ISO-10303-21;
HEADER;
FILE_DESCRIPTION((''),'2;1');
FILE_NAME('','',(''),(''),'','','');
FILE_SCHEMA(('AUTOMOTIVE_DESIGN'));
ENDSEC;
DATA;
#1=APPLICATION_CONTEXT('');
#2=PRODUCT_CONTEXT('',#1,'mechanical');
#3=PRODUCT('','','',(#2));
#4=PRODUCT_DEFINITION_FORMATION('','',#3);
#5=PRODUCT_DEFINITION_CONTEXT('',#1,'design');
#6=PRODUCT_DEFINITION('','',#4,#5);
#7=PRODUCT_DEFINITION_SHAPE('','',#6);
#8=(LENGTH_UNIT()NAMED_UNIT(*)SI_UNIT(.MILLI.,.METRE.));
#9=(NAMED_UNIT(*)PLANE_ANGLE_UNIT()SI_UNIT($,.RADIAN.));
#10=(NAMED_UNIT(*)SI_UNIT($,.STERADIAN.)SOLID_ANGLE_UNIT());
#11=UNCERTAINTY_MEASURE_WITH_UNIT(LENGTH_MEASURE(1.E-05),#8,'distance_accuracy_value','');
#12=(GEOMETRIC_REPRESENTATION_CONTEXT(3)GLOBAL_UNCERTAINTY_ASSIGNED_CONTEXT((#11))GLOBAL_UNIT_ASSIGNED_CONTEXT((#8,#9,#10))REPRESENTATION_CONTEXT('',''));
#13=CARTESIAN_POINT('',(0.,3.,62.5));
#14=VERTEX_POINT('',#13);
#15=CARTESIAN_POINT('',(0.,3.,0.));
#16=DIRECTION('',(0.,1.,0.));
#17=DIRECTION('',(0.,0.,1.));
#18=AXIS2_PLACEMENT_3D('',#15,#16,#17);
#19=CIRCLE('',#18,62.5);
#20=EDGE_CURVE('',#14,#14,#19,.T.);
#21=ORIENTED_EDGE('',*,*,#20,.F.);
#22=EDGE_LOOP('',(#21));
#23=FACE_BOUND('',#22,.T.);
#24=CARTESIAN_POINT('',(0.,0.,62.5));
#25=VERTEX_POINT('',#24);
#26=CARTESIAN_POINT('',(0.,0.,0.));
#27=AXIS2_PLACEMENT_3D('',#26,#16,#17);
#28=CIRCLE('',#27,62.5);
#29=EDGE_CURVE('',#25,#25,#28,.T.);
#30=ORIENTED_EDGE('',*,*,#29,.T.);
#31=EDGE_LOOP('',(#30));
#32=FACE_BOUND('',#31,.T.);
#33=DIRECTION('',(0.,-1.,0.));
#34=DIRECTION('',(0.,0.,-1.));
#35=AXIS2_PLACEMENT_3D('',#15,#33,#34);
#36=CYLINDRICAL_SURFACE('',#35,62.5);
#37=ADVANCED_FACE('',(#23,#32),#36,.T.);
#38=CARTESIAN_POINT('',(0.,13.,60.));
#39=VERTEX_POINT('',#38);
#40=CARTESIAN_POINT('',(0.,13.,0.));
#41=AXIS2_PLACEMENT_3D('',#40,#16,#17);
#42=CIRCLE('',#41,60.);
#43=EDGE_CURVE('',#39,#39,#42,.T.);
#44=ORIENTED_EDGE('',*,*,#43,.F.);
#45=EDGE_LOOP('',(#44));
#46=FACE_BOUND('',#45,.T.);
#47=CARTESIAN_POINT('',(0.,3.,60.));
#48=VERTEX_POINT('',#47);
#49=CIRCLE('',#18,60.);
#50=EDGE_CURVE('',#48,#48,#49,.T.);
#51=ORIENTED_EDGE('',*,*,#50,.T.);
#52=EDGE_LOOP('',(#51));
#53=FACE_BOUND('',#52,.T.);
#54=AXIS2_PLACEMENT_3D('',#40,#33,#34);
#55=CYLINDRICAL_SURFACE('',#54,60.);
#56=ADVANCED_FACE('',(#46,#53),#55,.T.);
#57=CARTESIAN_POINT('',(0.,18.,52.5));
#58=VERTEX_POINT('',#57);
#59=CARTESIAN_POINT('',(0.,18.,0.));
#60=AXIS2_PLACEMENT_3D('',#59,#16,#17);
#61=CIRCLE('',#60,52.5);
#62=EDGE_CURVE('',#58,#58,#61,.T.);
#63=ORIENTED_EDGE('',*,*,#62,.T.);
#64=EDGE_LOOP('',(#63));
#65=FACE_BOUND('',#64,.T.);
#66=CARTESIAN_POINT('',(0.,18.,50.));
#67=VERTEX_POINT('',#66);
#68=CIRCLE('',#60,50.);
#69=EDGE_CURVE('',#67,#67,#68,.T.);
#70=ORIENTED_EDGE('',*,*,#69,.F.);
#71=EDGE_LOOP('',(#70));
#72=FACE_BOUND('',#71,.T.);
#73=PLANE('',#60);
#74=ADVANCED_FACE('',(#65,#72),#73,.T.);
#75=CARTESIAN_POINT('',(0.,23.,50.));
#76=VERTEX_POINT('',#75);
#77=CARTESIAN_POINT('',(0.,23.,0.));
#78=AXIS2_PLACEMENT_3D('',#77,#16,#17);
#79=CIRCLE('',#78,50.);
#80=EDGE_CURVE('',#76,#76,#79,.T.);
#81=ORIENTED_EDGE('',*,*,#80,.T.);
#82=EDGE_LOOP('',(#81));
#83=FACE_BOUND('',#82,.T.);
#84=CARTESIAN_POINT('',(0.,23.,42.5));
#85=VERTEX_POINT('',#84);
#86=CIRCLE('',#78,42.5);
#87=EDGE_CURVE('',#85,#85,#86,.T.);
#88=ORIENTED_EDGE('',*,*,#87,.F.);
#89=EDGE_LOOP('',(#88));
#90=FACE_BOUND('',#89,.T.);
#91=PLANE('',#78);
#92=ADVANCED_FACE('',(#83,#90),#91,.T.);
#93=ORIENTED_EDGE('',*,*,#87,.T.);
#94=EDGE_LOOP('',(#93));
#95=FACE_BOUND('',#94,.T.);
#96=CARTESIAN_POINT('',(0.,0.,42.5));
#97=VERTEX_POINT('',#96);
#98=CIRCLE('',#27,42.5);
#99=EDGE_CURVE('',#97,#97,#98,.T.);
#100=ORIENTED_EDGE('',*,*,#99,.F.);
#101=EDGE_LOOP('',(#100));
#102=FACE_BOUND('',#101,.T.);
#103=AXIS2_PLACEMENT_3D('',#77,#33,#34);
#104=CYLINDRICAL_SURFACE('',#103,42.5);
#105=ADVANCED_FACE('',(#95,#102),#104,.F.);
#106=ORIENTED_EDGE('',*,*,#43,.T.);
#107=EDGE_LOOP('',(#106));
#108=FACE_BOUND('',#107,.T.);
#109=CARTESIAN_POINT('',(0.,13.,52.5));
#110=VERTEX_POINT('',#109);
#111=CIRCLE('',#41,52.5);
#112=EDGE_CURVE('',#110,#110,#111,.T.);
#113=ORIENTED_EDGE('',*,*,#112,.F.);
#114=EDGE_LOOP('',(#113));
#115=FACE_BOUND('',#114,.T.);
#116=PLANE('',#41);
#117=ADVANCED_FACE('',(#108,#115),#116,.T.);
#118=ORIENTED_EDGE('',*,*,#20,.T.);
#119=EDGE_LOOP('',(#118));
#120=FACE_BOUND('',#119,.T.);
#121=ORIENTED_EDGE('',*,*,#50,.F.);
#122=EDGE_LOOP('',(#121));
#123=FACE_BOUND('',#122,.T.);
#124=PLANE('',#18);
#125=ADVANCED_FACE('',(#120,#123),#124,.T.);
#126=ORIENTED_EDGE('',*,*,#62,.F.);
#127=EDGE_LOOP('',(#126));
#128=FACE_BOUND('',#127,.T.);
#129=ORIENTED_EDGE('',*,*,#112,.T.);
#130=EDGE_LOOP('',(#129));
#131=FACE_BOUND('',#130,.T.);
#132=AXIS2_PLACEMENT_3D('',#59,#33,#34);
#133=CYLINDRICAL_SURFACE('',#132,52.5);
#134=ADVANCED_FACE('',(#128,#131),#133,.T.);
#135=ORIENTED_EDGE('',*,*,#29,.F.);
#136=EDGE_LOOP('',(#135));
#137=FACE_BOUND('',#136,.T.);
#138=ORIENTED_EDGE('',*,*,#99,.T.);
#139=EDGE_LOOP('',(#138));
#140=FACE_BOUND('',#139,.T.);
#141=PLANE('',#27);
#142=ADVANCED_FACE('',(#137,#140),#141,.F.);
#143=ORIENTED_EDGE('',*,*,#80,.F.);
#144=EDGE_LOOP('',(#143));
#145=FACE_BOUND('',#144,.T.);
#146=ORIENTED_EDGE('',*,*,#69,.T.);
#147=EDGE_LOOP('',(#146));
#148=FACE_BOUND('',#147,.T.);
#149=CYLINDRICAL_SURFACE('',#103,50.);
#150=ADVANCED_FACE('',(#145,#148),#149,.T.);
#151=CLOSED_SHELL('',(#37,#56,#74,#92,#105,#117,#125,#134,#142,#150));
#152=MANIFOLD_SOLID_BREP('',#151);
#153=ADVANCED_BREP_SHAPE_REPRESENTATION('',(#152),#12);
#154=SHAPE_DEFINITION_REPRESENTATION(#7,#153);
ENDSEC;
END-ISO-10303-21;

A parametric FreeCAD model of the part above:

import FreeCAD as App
import Part
import Sketcher
from FreeCAD import Vector
Q = App.Units.Quantity

doc = App.newDocument("Part")
body = doc.addObject("PartDesign::Body", "Body")

# Sketch on XZ plane
sketch1 = doc.addObject("Sketcher::SketchObject", "Sketch")
body.addObject(sketch1)
sketch1.AttachmentSupport = (doc.XZ_Plane, [""])
sketch1.MapMode = "FlatFace"
sketch1.addGeometry(Part.Circle(Vector(0, 0, 0), Vector(0, 0, 1), 62.5), False)
sketch1.addConstraint([
    Sketcher.Constraint("Coincident", 0, 3, -1, 1),
    Sketcher.Constraint("Diameter", 0, Q("125 mm")),
])
pad1 = doc.addObject("PartDesign::Pad", "Pad")
body.addObject(pad1)
pad1.Profile = sketch1
pad1.Length = 3
pad1.Reversed = True

# Sketch on XZ plane
sketch2 = doc.addObject("Sketcher::SketchObject", "Sketch001")
body.addObject(sketch2)
sketch2.AttachmentSupport = (doc.XZ_Plane, [""])
sketch2.MapMode = "FlatFace"
sketch2.AttachmentOffset = App.Placement(Vector(0, 0, -3), App.Rotation())
sketch2.addGeometry([
    Part.Circle(Vector(0, 0, 0), Vector(0, 0, 1), 60),
    Part.Circle(Vector(0, 0, 0), Vector(0, 0, 1), 52.5),
], False)
sketch2.addConstraint([
    Sketcher.Constraint("Coincident", 0, 3, -1, 1),
    Sketcher.Constraint("Coincident", 1, 3, -1, 1),
    Sketcher.Constraint("Diameter", 0, Q("120 mm")),
    Sketcher.Constraint("Diameter", 1, Q("105 mm")),
])
pad2 = doc.addObject("PartDesign::Pad", "Pad001")
body.addObject(pad2)
pad2.Profile = sketch2
pad2.Length = 10
pad2.Reversed = True

# Sketch on XZ plane
sketch3 = doc.addObject("Sketcher::SketchObject", "Sketch002")
body.addObject(sketch3)
sketch3.AttachmentSupport = (doc.XZ_Plane, [""])
sketch3.MapMode = "FlatFace"
sketch3.AttachmentOffset = App.Placement(Vector(0, 0, -3), App.Rotation())
sketch3.addGeometry([
    Part.Circle(Vector(0, 0, 0), Vector(0, 0, 1), 52.5),
    Part.Circle(Vector(0, 0, 0), Vector(0, 0, 1), 50),
], False)
sketch3.addConstraint([
    Sketcher.Constraint("Coincident", 0, 3, -1, 1),
    Sketcher.Constraint("Coincident", 1, 3, -1, 1),
    Sketcher.Constraint("Diameter", 0, Q("105 mm")),
    Sketcher.Constraint("Diameter", 1, Q("100 mm")),
])
pad3 = doc.addObject("PartDesign::Pad", "Pad002")
body.addObject(pad3)
pad3.Profile = sketch3
pad3.Length = 15
pad3.Reversed = True

# Sketch on XZ plane
sketch4 = doc.addObject("Sketcher::SketchObject", "Sketch003")
body.addObject(sketch4)
sketch4.AttachmentSupport = (doc.XZ_Plane, [""])
sketch4.MapMode = "FlatFace"
sketch4.AttachmentOffset = App.Placement(Vector(0, 0, -3), App.Rotation())
sketch4.addGeometry([
    Part.Circle(Vector(0, 0, 0), Vector(0, 0, 1), 50),
    Part.Circle(Vector(0, 0, 0), Vector(0, 0, 1), 42.5),
], False)
sketch4.addConstraint([
    Sketcher.Constraint("Coincident", 0, 3, -1, 1),
    Sketcher.Constraint("Coincident", 1, 3, -1, 1),
    Sketcher.Constraint("Diameter", 0, Q("100 mm")),
    Sketcher.Constraint("Diameter", 1, Q("85 mm")),
])
pad4 = doc.addObject("PartDesign::Pad", "Pad003")
body.addObject(pad4)
pad4.Profile = sketch4
pad4.Length = 20
pad4.Reversed = True

# Sketch on XZ plane
sketch5 = doc.addObject("Sketcher::SketchObject", "Sketch004")
body.addObject(sketch5)
sketch5.AttachmentSupport = (doc.XZ_Plane, [""])
sketch5.MapMode = "FlatFace"
sketch5.AttachmentOffset = App.Placement(Vector(0, 0, -3), App.Rotation())
sketch5.addGeometry(Part.Circle(Vector(0, 0, 0), Vector(0, 0, 1), 42.5), False)
sketch5.addConstraint([
    Sketcher.Constraint("Coincident", 0, 3, -1, 1),
    Sketcher.Constraint("Diameter", 0, Q("85 mm")),
])
pocket1 = doc.addObject("PartDesign::Pocket", "Pocket")
body.addObject(pocket1)
pocket1.Profile = sketch5
pocket1.Type = "ThroughAll"
pocket1.Reversed = True

doc.recompute()
